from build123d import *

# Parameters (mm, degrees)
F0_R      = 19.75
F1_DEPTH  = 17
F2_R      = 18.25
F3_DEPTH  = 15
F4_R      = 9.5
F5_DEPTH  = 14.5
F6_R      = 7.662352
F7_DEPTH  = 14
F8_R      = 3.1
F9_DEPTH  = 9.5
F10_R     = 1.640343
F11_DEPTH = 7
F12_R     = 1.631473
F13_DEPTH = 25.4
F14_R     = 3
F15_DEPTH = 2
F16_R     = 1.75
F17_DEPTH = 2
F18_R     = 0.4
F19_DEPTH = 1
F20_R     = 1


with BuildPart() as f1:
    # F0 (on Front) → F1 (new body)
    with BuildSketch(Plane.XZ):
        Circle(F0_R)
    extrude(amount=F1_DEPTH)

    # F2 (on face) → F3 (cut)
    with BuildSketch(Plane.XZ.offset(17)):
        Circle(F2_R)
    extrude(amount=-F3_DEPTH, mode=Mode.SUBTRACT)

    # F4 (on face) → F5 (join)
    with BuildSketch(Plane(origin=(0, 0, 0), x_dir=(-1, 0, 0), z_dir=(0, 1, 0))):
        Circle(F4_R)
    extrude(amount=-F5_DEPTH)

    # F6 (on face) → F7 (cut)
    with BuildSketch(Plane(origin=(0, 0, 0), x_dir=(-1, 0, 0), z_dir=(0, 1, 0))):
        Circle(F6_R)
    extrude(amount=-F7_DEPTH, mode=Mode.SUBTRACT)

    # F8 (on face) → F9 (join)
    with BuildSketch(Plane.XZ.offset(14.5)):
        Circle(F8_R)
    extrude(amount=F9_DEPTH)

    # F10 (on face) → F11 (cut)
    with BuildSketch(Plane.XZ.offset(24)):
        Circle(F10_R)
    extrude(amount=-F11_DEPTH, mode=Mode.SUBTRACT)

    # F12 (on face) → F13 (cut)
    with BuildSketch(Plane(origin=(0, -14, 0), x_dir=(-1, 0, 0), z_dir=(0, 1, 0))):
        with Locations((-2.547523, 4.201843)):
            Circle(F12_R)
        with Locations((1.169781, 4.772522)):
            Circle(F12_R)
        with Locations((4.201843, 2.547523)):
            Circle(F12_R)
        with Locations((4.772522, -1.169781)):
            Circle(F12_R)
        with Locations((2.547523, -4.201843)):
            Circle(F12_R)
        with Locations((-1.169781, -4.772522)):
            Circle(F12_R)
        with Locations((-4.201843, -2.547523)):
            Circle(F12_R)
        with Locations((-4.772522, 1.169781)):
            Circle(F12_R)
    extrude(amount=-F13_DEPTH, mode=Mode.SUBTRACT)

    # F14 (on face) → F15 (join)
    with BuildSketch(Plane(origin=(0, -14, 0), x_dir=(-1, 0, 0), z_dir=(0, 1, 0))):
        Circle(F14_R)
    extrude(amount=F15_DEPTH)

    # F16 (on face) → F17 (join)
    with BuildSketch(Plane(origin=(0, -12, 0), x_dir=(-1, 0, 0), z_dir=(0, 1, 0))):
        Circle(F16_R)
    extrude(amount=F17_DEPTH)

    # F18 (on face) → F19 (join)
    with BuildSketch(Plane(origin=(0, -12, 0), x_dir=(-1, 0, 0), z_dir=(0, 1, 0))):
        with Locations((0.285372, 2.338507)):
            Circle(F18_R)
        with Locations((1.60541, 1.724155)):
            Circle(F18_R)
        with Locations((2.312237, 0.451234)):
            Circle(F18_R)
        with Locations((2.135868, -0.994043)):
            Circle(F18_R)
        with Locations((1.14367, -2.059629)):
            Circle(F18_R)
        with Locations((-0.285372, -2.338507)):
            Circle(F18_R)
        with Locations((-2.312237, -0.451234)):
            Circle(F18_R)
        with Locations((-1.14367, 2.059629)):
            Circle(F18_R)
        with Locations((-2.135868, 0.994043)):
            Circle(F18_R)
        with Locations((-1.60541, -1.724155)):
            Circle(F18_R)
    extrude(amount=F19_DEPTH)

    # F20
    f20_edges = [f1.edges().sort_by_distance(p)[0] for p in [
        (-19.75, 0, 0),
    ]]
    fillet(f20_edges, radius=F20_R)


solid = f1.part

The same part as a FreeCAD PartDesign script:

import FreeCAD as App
import Part
import Sketcher
from FreeCAD import Vector


def edges_at(feature, points):
    """Names of the edges that pass closest to the given points."""
    edges = feature.Shape.Edges
    near = lambda p: min(range(len(edges)), key=lambda i: edges[i].distToShape(Part.Vertex(*p))[0])
    return sorted({f"Edge{near(p) + 1}" for p in points})

doc = App.newDocument("Part")
body = doc.addObject("PartDesign::Body", "Body")

# Sketch on XZ plane
sketch1 = body.newObject("Sketcher::SketchObject", "Sketch")
sketch1.AttachmentSupport = (doc.getObject("XZ_Plane"), [""])
sketch1.MapMode = "FlatFace"
sketch1.addGeometry(Part.Circle(Vector(0, 0, 0), Vector(0, 0, 1), 19.75), False)
sketch1.addConstraint([
    Sketcher.Constraint("Coincident", 0, 3, -1, 1),
    Sketcher.Constraint("Diameter", 0, 39.5),
])
pad1 = body.newObject("PartDesign::Pad", "Pad")
pad1.Profile = sketch1
pad1.Length = 17

# Sketch on XZ plane
sketch2 = body.newObject("Sketcher::SketchObject", "Sketch001")
sketch2.AttachmentSupport = (doc.getObject("XZ_Plane"), [""])
sketch2.MapMode = "FlatFace"
sketch2.AttachmentOffset = App.Placement(Vector(0, 0, 17), App.Rotation())
sketch2.addGeometry(Part.Circle(Vector(0, 0, 0), Vector(0, 0, 1), 18.25), False)
sketch2.addConstraint([
    Sketcher.Constraint("Coincident", 0, 3, -1, 1),
    Sketcher.Constraint("Diameter", 0, 36.5),
])
pocket1 = body.newObject("PartDesign::Pocket", "Pocket")
pocket1.Profile = sketch2
pocket1.Length = 15

# Sketch on XZ plane
sketch3 = body.newObject("Sketcher::SketchObject", "Sketch002")
sketch3.AttachmentSupport = (doc.getObject("XZ_Plane"), [""])
sketch3.MapMode = "FlatFace"
sketch3.addGeometry(Part.Circle(Vector(0, 0, 0), Vector(0, 0, 1), 9.5), False)
sketch3.addConstraint([
    Sketcher.Constraint("Coincident", 0, 3, -1, 1),
    Sketcher.Constraint("Diameter", 0, 19.0),
])
pad2 = body.newObject("PartDesign::Pad", "Pad001")
pad2.Profile = sketch3
pad2.Length = 14.5

# Sketch on XZ plane
sketch4 = body.newObject("Sketcher::SketchObject", "Sketch003")
sketch4.AttachmentSupport = (doc.getObject("XZ_Plane"), [""])
sketch4.MapMode = "FlatFace"
sketch4.addGeometry(Part.Circle(Vector(0, 0, 0), Vector(0, 0, 1), 7.662352), False)
sketch4.addConstraint([
    Sketcher.Constraint("Coincident", 0, 3, -1, 1),
    Sketcher.Constraint("Diameter", 0, 15.324704),
])
pocket2 = body.newObject("PartDesign::Pocket", "Pocket001")
pocket2.Profile = sketch4
pocket2.Length = 14
pocket2.Reversed = True

# Sketch on XZ plane
sketch5 = body.newObject("Sketcher::SketchObject", "Sketch004")
sketch5.AttachmentSupport = (doc.getObject("XZ_Plane"), [""])
sketch5.MapMode = "FlatFace"
sketch5.AttachmentOffset = App.Placement(Vector(0, 0, 14.5), App.Rotation())
sketch5.addGeometry(Part.Circle(Vector(0, 0, 0), Vector(0, 0, 1), 3.1), False)
sketch5.addConstraint([
    Sketcher.Constraint("Coincident", 0, 3, -1, 1),
    Sketcher.Constraint("Diameter", 0, 6.2),
])
pad3 = body.newObject("PartDesign::Pad", "Pad002")
pad3.Profile = sketch5
pad3.Length = 9.5

# Sketch on XZ plane
sketch6 = body.newObject("Sketcher::SketchObject", "Sketch005")
sketch6.AttachmentSupport = (doc.getObject("XZ_Plane"), [""])
sketch6.MapMode = "FlatFace"
sketch6.AttachmentOffset = App.Placement(Vector(0, 0, 24), App.Rotation())
sketch6.addGeometry(Part.Circle(Vector(0, 0, 0), Vector(0, 0, 1), 1.640343), False)
sketch6.addConstraint([
    Sketcher.Constraint("Coincident", 0, 3, -1, 1),
    Sketcher.Constraint("Diameter", 0, 3.280686),
])
pocket3 = body.newObject("PartDesign::Pocket", "Pocket002")
pocket3.Profile = sketch6
pocket3.Length = 7

# Sketch on XZ plane
sketch7 = body.newObject("Sketcher::SketchObject", "Sketch006")
sketch7.AttachmentSupport = (doc.getObject("XZ_Plane"), [""])
sketch7.MapMode = "FlatFace"
sketch7.AttachmentOffset = App.Placement(Vector(0, 0, 14), App.Rotation())
sketch7.addGeometry([
    Part.Circle(Vector(2.547523, 4.201843, 0), Vector(0, 0, 1), 1.631473),  # 0
    Part.Circle(Vector(-1.169781, 4.772522, 0), Vector(0, 0, 1), 1.631473),  # 1
    Part.Circle(Vector(-4.201843, 2.547523, 0), Vector(0, 0, 1), 1.631473),  # 2
    Part.Circle(Vector(-4.772522, -1.169781, 0), Vector(0, 0, 1), 1.631473),  # 3
    Part.Circle(Vector(-2.547523, -4.201843, 0), Vector(0, 0, 1), 1.631473),  # 4
    Part.Circle(Vector(1.169781, -4.772522, 0), Vector(0, 0, 1), 1.631473),  # 5
    Part.Circle(Vector(4.201843, -2.547523, 0), Vector(0, 0, 1), 1.631473),  # 6
    Part.Circle(Vector(4.772522, 1.169781, 0), Vector(0, 0, 1), 1.631473),  # 7
], False)
sketch7.addConstraint([
    Sketcher.Constraint("Equal", 0, 1),
    Sketcher.Constraint("Equal", 1, 2),
    Sketcher.Constraint("Equal", 2, 3),
    Sketcher.Constraint("Equal", 3, 4),
    Sketcher.Constraint("Equal", 4, 5),
    Sketcher.Constraint("Equal", 5, 6),
    Sketcher.Constraint("Equal", 6, 7),
    Sketcher.Constraint("Symmetric", 0, 3, 4, 3, -1, 1),
    Sketcher.Constraint("Symmetric", 1, 3, 5, 3, -1, 1),
    Sketcher.Constraint("Symmetric", 2, 3, 6, 3, -1, 1),
    Sketcher.Constraint("Symmetric", 3, 3, 7, 3, -1, 1),
    Sketcher.Constraint("Diameter", 0, 3.262946),
    Sketcher.Constraint("DistanceY", 2, 3, 1, 3, 2.224999),
    Sketcher.Constraint("DistanceX", 3, 3, 4, 3, 2.224999),
    Sketcher.Constraint("DistanceX", 1, 3, -1, 1, 1.169781),
    Sketcher.Constraint("DistanceY", 3, 3, -1, 1, 1.169781),
    Sketcher.Constraint("DistanceY", 0, 3, 1, 3, 0.570679),
    Sketcher.Constraint("DistanceX", 3, 3, 2, 3, 0.570679),
    Sketcher.Constraint("DistanceX", 3, 3, 1, 3, 3.602741),
    Sketcher.Constraint("DistanceY", 5, 3, 3, 3, 3.602741),
])
pocket4 = body.newObject("PartDesign::Pocket", "Pocket003")
pocket4.Profile = sketch7
pocket4.Length = 25.4
pocket4.Reversed = True

# Sketch on XZ plane
sketch8 = body.newObject("Sketcher::SketchObject", "Sketch007")
sketch8.AttachmentSupport = (doc.getObject("XZ_Plane"), [""])
sketch8.MapMode = "FlatFace"
sketch8.AttachmentOffset = App.Placement(Vector(0, 0, 14), App.Rotation())
sketch8.addGeometry(Part.Circle(Vector(0, 0, 0), Vector(0, 0, 1), 3), False)
sketch8.addConstraint([
    Sketcher.Constraint("Coincident", 0, 3, -1, 1),
    Sketcher.Constraint("Diameter", 0, 6.0),
])
pad4 = body.newObject("PartDesign::Pad", "Pad003")
pad4.Profile = sketch8
pad4.Length = 2
pad4.Reversed = True

# Sketch on XZ plane
sketch9 = body.newObject("Sketcher::SketchObject", "Sketch008")
sketch9.AttachmentSupport = (doc.getObject("XZ_Plane"), [""])
sketch9.MapMode = "FlatFace"
sketch9.AttachmentOffset = App.Placement(Vector(0, 0, 12), App.Rotation())
sketch9.addGeometry(Part.Circle(Vector(0, 0, 0), Vector(0, 0, 1), 1.75), False)
sketch9.addConstraint([
    Sketcher.Constraint("Coincident", 0, 3, -1, 1),
    Sketcher.Constraint("Diameter", 0, 3.5),
])
pad5 = body.newObject("PartDesign::Pad", "Pad004")
pad5.Profile = sketch9
pad5.Length = 2
pad5.Reversed = True

# Sketch on XZ plane
sketch10 = body.newObject("Sketcher::SketchObject", "Sketch009")
sketch10.AttachmentSupport = (doc.getObject("XZ_Plane"), [""])
sketch10.MapMode = "FlatFace"
sketch10.AttachmentOffset = App.Placement(Vector(0, 0, 12), App.Rotation())
sketch10.addGeometry([
    Part.Circle(Vector(-0.285372, 2.338507, 0), Vector(0, 0, 1), 0.4),  # 0
    Part.Circle(Vector(-1.60541, 1.724155, 0), Vector(0, 0, 1), 0.4),  # 1
    Part.Circle(Vector(-2.312237, 0.451234, 0), Vector(0, 0, 1), 0.4),  # 2
    Part.Circle(Vector(-2.135868, -0.994043, 0), Vector(0, 0, 1), 0.4),  # 3
    Part.Circle(Vector(-1.14367, -2.059629, 0), Vector(0, 0, 1), 0.4),  # 4
    Part.Circle(Vector(0.285372, -2.338507, 0), Vector(0, 0, 1), 0.4),  # 5
    Part.Circle(Vector(2.312237, -0.451234, 0), Vector(0, 0, 1), 0.4),  # 6
    Part.Circle(Vector(1.14367, 2.059629, 0), Vector(0, 0, 1), 0.4),  # 7
    Part.Circle(Vector(2.135868, 0.994043, 0), Vector(0, 0, 1), 0.4),  # 8
    Part.Circle(Vector(1.60541, -1.724155, 0), Vector(0, 0, 1), 0.4),  # 9
], False)
sketch10.addConstraint([
    Sketcher.Constraint("Equal", 0, 1),
    Sketcher.Constraint("Equal", 1, 2),
    Sketcher.Constraint("Equal", 2, 3),
    Sketcher.Constraint("Equal", 3, 4),
    Sketcher.Constraint("Equal", 4, 5),
    Sketcher.Constraint("Equal", 5, 6),
    Sketcher.Constraint("Equal", 6, 7),
    Sketcher.Constraint("Equal", 7, 8),
    Sketcher.Constraint("Equal", 8, 9),
    Sketcher.Constraint("Symmetric", 0, 3, 5, 3, -1, 1),
    Sketcher.Constraint("Symmetric", 2, 3, 6, 3, -1, 1),
    Sketcher.Constraint("Symmetric", 4, 3, 7, 3, -1, 1),
    Sketcher.Constraint("Symmetric", 3, 3, 8, 3, -1, 1),
    Sketcher.Constraint("Symmetric", 1, 3, 9, 3, -1, 1),
    Sketcher.Constraint("Diameter", 0, 0.8),
    Sketcher.Constraint("DistanceY", 3, 3, 1, 3, 2.718198),
    Sketcher.Constraint("DistanceX", 4, 3, 0, 3, 0.858298),
    Sketcher.Constraint("DistanceX", 1, 3, -1, 1, 1.60541),
    Sketcher.Constraint("DistanceX", 4, 3, -1, 1, 1.14367),
    Sketcher.Constraint("DistanceY", 4, 3, -1, 1, 2.059629),
    Sketcher.Constraint("DistanceY", 1, 3, 0, 3, 0.614352),
    Sketcher.Constraint("DistanceY", 2, 3, 1, 3, 1.272921),
    Sketcher.Constraint("DistanceX", 2, 3, 3, 3, 0.176369),
    Sketcher.Constraint("DistanceX", 3, 3, 5, 3, 2.42124),
    Sketcher.Constraint("DistanceY", 5, 3, 2, 3, 2.789741),
])
pad6 = body.newObject("PartDesign::Pad", "Pad005")
pad6.Profile = sketch10
pad6.Length = 1
pad6.Reversed = True
doc.recompute()

fillet = body.newObject("PartDesign::Fillet", "Fillet")
fillet.Base = (pad6, edges_at(pad6, [(-19.75, 0, 0)]))
fillet.Radius = 1

doc.recompute()
